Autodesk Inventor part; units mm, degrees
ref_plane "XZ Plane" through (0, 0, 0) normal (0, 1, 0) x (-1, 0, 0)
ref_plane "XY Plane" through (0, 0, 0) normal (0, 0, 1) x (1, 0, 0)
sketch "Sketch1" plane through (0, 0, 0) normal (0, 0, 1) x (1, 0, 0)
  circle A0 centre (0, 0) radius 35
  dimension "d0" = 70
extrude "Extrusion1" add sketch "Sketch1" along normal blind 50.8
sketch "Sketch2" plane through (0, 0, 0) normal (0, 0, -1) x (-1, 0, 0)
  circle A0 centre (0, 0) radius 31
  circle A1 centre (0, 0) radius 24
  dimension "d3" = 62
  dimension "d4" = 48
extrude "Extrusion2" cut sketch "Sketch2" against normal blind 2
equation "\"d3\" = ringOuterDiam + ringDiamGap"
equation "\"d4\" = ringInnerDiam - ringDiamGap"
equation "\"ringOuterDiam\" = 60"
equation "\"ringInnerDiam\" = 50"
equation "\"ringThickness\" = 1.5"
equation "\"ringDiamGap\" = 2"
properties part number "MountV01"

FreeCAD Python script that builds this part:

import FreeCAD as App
import Part
import Sketcher

doc = App.newDocument("Part")
params = doc.addObject("Spreadsheet::Sheet", "Params")
for row, (alias, value) in enumerate([
    ("sketch1_diameter", "70 mm"),
    ("pad1_length", "50.8 mm"),
    ("sketch2_diameter", "62 mm"),
    ("sketch2_diameter2", "48 mm"),
    ("pocket1_length", "2 mm"),
], start=1):
    params.set(f"A{row}", alias)
    params.set(f"B{row}", "=" + value)
    params.setAlias(f"B{row}", alias)

body = doc.addObject("PartDesign::Body", "Body")

# Sketch on XY plane
sketch1 = body.newObject("Sketcher::SketchObject", "Sketch")
sketch1.AttachmentSupport = (doc.getObject("XY_Plane"), [""])
sketch1.MapMode = "FlatFace"
sketch1.addGeometry(Part.Circle(App.Vector(0, 0, 0), App.Vector(0, 0, 1), 35), False)
sketch1.addConstraint([
    Sketcher.Constraint("Coincident", 0, 3, -1, 1),
    Sketcher.Constraint("Diameter", 0, 70.0),
])
sketch1.setExpression("Constraints[1]", "Params.sketch1_diameter")
pad1 = body.newObject("PartDesign::Pad", "Pad")
pad1.Profile = sketch1
pad1.setExpression("Length", "Params.pad1_length")

# Sketch on XY plane
sketch2 = body.newObject("Sketcher::SketchObject", "Sketch001")
sketch2.AttachmentSupport = (doc.getObject("XY_Plane"), [""])
sketch2.MapMode = "FlatFace"
sketch2.addGeometry([
    Part.Circle(App.Vector(0, 0, 0), App.Vector(0, 0, 1), 31),
    Part.Circle(App.Vector(0, 0, 0), App.Vector(0, 0, 1), 24),
], False)
sketch2.addConstraint([
    Sketcher.Constraint("Coincident", 0, 3, -1, 1),
    Sketcher.Constraint("Coincident", 1, 3, -1, 1),
    Sketcher.Constraint("Diameter", 0, 62.0),
    Sketcher.Constraint("Diameter", 1, 48.0),
])
sketch2.setExpression("Constraints[2]", "Params.sketch2_diameter")
sketch2.setExpression("Constraints[3]", "Params.sketch2_diameter2")
pocket1 = body.newObject("PartDesign::Pocket", "Pocket")
pocket1.Profile = sketch2
pocket1.setExpression("Length", "Params.pocket1_length")
pocket1.Reversed = True

doc.recompute()
